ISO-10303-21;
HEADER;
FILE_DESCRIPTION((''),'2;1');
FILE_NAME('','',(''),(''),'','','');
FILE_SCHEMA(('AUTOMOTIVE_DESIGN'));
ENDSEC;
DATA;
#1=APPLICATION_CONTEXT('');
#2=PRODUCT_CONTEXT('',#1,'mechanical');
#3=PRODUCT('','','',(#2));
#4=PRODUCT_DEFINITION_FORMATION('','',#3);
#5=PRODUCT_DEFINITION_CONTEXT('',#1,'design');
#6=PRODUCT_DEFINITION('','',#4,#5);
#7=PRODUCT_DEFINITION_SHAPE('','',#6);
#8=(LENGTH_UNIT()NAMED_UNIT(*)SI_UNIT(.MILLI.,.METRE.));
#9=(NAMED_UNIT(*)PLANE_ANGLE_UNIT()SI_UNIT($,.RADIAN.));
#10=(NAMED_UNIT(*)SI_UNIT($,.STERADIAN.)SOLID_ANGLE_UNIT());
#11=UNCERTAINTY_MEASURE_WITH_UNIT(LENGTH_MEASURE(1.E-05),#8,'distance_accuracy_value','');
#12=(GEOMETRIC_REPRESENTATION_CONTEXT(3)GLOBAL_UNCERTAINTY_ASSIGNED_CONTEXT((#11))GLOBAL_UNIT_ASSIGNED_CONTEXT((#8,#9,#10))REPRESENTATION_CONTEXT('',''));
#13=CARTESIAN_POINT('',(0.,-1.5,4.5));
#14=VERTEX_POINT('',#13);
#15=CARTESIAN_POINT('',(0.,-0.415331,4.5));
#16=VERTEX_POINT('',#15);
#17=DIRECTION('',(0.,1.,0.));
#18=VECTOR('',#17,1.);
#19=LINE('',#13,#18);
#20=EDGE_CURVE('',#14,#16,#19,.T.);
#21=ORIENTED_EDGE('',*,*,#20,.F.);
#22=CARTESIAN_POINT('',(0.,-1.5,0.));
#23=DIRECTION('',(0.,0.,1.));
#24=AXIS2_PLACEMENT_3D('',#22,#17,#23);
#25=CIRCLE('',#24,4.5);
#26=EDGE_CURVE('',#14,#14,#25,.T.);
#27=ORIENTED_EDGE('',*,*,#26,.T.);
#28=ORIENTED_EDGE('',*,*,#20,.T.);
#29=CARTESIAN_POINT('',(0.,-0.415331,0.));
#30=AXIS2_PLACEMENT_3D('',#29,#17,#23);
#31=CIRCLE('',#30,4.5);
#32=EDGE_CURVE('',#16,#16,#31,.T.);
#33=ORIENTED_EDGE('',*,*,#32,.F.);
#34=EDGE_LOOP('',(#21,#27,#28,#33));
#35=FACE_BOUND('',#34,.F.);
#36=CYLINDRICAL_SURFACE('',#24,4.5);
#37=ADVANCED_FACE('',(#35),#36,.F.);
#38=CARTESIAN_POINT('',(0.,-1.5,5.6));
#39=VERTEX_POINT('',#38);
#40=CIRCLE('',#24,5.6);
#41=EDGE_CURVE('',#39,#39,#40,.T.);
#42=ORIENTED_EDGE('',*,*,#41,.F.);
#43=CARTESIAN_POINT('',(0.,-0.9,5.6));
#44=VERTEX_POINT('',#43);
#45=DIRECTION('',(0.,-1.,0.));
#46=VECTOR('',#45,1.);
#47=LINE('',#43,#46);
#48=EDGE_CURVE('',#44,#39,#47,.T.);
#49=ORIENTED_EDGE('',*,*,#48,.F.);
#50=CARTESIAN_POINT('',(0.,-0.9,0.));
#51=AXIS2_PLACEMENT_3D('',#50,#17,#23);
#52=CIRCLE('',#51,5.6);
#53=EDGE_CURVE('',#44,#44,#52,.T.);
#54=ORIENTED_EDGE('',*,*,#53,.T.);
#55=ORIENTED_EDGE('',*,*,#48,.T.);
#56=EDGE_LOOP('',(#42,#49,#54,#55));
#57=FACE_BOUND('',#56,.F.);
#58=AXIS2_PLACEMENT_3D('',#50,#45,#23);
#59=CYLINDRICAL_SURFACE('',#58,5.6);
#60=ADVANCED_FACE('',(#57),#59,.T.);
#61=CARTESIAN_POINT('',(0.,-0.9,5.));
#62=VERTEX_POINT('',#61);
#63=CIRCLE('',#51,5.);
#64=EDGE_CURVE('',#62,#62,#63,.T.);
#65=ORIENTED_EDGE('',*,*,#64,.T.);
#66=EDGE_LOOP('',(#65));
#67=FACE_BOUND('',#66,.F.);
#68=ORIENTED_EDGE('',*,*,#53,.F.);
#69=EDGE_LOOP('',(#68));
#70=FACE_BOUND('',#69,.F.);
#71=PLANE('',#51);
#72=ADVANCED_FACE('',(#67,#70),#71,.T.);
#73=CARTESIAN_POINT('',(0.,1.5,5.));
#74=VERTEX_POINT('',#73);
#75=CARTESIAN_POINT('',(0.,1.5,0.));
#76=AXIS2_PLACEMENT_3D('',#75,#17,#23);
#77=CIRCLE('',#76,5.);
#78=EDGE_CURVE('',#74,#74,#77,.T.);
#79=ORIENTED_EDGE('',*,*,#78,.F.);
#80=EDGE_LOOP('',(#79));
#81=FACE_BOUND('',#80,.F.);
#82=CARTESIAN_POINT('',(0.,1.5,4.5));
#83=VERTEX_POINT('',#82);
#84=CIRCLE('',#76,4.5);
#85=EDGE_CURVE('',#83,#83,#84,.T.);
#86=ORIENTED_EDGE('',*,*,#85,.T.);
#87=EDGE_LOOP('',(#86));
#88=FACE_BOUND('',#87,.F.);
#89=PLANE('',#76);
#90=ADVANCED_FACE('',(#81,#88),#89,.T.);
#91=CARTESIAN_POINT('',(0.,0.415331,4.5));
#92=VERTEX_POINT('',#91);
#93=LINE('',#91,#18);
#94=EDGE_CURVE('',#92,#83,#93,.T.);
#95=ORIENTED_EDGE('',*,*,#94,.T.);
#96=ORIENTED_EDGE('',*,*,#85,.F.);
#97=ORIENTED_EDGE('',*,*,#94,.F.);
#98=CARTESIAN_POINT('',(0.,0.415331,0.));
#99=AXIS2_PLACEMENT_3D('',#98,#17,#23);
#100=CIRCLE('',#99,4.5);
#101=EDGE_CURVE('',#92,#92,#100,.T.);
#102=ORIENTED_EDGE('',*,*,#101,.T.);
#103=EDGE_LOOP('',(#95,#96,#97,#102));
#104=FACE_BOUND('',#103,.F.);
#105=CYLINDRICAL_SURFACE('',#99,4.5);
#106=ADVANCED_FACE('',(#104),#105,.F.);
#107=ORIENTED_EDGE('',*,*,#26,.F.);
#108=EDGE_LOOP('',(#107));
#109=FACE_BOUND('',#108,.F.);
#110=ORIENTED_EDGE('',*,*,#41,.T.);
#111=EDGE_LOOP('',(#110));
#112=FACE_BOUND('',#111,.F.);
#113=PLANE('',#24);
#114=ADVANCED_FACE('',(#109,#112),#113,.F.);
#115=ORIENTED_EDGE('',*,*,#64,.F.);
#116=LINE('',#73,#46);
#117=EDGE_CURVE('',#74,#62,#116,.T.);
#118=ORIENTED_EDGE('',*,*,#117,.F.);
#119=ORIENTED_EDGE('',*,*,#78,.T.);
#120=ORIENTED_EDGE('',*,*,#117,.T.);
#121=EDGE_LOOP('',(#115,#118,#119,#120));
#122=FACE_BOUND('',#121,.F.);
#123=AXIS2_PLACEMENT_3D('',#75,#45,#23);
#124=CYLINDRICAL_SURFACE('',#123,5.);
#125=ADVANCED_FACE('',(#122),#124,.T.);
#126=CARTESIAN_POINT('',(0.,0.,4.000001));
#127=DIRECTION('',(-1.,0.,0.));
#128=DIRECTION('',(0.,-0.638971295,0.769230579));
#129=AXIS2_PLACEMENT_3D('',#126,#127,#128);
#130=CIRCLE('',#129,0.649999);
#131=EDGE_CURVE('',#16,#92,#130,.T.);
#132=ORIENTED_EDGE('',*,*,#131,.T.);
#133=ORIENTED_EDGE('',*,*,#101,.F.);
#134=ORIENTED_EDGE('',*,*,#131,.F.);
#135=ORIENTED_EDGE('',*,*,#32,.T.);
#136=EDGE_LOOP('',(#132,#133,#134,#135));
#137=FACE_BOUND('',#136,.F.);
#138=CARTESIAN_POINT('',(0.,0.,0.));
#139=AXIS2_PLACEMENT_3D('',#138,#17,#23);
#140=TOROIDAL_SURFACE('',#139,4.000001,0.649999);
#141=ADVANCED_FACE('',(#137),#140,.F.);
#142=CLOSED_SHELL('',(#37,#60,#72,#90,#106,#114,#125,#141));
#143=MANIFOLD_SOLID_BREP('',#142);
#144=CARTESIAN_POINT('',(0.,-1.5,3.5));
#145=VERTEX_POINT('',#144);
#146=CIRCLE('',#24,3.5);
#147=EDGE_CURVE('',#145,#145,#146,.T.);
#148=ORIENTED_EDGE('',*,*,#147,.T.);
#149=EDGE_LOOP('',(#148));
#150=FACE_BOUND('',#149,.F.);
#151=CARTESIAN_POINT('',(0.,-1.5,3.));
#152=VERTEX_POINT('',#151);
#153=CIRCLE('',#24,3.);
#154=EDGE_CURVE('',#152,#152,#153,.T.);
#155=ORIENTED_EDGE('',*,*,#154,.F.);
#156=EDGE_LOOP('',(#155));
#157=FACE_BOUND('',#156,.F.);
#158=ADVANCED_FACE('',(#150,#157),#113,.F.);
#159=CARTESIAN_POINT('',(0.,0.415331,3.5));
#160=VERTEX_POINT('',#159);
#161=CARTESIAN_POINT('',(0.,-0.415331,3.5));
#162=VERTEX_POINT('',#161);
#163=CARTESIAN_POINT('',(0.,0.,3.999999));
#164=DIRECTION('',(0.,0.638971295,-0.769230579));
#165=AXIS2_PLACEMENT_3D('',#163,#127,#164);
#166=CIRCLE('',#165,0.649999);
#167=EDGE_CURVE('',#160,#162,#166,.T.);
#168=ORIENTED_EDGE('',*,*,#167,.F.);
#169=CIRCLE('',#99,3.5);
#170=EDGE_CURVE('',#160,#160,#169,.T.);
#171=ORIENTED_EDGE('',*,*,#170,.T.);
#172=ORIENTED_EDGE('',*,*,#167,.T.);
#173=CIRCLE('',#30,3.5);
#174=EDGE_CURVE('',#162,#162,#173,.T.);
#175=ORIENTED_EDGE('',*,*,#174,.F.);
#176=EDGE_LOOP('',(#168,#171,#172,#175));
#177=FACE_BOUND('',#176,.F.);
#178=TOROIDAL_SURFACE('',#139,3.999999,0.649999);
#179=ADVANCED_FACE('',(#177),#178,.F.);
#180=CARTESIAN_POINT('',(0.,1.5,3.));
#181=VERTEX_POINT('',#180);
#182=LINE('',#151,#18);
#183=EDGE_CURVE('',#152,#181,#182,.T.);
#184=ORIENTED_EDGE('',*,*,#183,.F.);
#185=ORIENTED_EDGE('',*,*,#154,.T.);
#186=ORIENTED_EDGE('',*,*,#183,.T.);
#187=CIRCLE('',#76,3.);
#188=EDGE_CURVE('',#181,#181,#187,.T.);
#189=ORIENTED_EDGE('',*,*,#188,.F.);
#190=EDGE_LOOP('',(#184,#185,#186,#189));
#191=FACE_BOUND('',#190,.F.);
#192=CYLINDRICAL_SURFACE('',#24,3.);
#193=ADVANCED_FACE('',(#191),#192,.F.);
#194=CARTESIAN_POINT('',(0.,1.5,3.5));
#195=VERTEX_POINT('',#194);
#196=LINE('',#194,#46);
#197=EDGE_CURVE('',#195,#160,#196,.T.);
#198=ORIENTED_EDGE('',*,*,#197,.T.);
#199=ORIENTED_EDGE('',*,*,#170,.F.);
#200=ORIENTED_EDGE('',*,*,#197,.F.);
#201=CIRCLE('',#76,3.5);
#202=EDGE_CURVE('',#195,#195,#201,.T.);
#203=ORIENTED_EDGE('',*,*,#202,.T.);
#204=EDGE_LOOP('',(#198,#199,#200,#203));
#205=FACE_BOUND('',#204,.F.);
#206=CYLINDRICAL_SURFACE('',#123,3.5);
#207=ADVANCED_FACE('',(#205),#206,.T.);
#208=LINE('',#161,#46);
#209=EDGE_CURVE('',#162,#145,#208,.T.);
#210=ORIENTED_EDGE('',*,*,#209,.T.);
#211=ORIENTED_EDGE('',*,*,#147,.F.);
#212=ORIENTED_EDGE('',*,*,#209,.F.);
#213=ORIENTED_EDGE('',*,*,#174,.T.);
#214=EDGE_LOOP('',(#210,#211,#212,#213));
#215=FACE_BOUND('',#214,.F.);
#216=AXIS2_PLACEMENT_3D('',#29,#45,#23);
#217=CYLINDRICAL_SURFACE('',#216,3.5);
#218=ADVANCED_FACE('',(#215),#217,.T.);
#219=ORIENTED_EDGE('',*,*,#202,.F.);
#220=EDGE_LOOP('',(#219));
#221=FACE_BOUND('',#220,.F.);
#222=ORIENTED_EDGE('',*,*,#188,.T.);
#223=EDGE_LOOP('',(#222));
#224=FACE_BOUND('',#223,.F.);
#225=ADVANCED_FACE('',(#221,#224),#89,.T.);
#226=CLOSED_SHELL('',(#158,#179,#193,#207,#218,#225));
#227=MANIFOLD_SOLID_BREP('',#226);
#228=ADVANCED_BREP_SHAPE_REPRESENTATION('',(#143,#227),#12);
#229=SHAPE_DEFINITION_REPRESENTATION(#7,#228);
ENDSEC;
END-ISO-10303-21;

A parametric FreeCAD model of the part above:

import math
import FreeCAD as App
import Part
import Sketcher
from FreeCAD import Vector
Q = App.Units.Quantity

doc = App.newDocument("Part")
params = doc.addObject("Spreadsheet::Sheet", "Params")
for row, (alias, value) in enumerate([
    ("sketch1_width", "3 mm"),
    ("sketch1_radius", "0.649999 mm"),
    ("sketch1_width2", "0.6 mm"),
    ("sketch1_height", "0.5 mm"),
    ("revolution_angle", "360 deg"),
], start=1):
    params.set(f"A{row}", alias)
    params.set(f"B{row}", "=" + value)
    params.setAlias(f"B{row}", alias)

body = doc.addObject("PartDesign::Body", "Body")
body.AllowCompound = True

# Sketch on YZ plane
sketch1 = body.newObject("Sketcher::SketchObject", "Sketch")
sketch1.AttachmentSupport = (doc.getObject("YZ_Plane"), [""])
sketch1.MapMode = "FlatFace"
sketch1.addGeometry([
    Part.LineSegment(Vector(-0.415331, 3.5, 0), Vector(-1.5, 3.5, 0)),  # 0
    Part.LineSegment(Vector(-1.5, 3.5, 0), Vector(-1.5, 3, 0)),  # 1
    Part.LineSegment(Vector(-1.5, 3, 0), Vector(1.5, 3, 0)),  # 2
    Part.LineSegment(Vector(1.5, 3, 0), Vector(1.5, 3.5, 0)),  # 3
    Part.LineSegment(Vector(1.5, 3.5, 0), Vector(0.415331, 3.5, 0)),  # 4
    Part.ArcOfCircle(Part.Circle(Vector(0, 3.999999, 0), Vector(0, 0, 1), 0.649999), math.radians(-129.715154), math.radians(-50.284846)),  # 5
    Part.LineSegment(Vector(-0.9, 5.6, 0), Vector(-1.5, 5.6, 0)),  # 6
    Part.LineSegment(Vector(-1.5, 5.6, 0), Vector(-1.5, 4.5, 0)),  # 7
    Part.LineSegment(Vector(-1.5, 4.5, 0), Vector(-0.415331, 4.5, 0)),  # 8
    Part.ArcOfCircle(Part.Circle(Vector(0, 4.000001, 0), Vector(0, 0, 1), 0.649999), math.radians(50.284846), math.radians(129.715154)),  # 9
    Part.LineSegment(Vector(0.415331, 4.5, 0), Vector(1.5, 4.5, 0)),  # 10
    Part.LineSegment(Vector(1.5, 4.5, 0), Vector(1.5, 5, 0)),  # 11
    Part.LineSegment(Vector(1.5, 5, 0), Vector(-0.9, 5, 0)),  # 12
    Part.LineSegment(Vector(-0.9, 5, 0), Vector(-0.9, 5.6, 0)),  # 13
], False)
sketch1.addConstraint([
    Sketcher.Constraint("Coincident", 0, 2, 1, 1),
    Sketcher.Constraint("Coincident", 1, 2, 2, 1),
    Sketcher.Constraint("Coincident", 2, 2, 3, 1),
    Sketcher.Constraint("Coincident", 3, 2, 4, 1),
    Sketcher.Constraint("Coincident", 4, 2, 5, 2),
    Sketcher.Constraint("Coincident", 5, 1, 0, 1),
    Sketcher.Constraint("Coincident", 6, 2, 7, 1),
    Sketcher.Constraint("Coincident", 7, 2, 8, 1),
    Sketcher.Constraint("Coincident", 8, 2, 9, 2),
    Sketcher.Constraint("Coincident", 9, 1, 10, 1),
    Sketcher.Constraint("Coincident", 10, 2, 11, 1),
    Sketcher.Constraint("Coincident", 11, 2, 12, 1),
    Sketcher.Constraint("Coincident", 12, 2, 13, 1),
    Sketcher.Constraint("Coincident", 13, 2, 6, 1),
    Sketcher.Constraint("Horizontal", 0),
    Sketcher.Constraint("Vertical", 1),
    Sketcher.Constraint("Horizontal", 2),
    Sketcher.Constraint("Vertical", 3),
    Sketcher.Constraint("Horizontal", 4),
    Sketcher.Constraint("Horizontal", 6),
    Sketcher.Constraint("Vertical", 7),
    Sketcher.Constraint("Horizontal", 8),
    Sketcher.Constraint("Horizontal", 10),
    Sketcher.Constraint("Vertical", 11),
    Sketcher.Constraint("Horizontal", 12),
    Sketcher.Constraint("Vertical", 13),
    Sketcher.Constraint("Coincident", 9, 3, 5, 3),
    Sketcher.Constraint("Equal", 5, 9),
    Sketcher.Constraint("Symmetric", 0, 2, 3, 2, -2),
    Sketcher.Constraint("Symmetric", 8, 2, 9, 1, -2),
    Sketcher.Constraint("Vertical", 1, 2, 6, 2),
    Sketcher.Constraint("Vertical", 5, 1, 8, 2),
    Sketcher.Constraint("Vertical", 3, 2, 10, 2),
    Sketcher.Constraint("Equal", 3, 11),
    Sketcher.Constraint("Equal", 6, 13),
    Sketcher.Constraint("DistanceX", 2, 1, 2, 2, Q("3 mm")),
    Sketcher.Constraint("Radius", 5, Q("0.649999 mm")),
    Sketcher.Constraint("DistanceX", 6, 2, 6, 1, Q("0.6 mm")),
    Sketcher.Constraint("DistanceY", 1, 2, 1, 1, Q("0.5 mm")),
    Sketcher.Constraint("DistanceY", -1, 1, 5, 3, Q("3.999999 mm")),
    Sketcher.Constraint("DistanceY", -1, 1, 1, 2, Q("3 mm")),
])
sketch1.setExpression("Constraints[35]", "Params.sketch1_width")
sketch1.setExpression("Constraints[36]", "Params.sketch1_radius")
sketch1.setExpression("Constraints[37]", "Params.sketch1_width2")
sketch1.setExpression("Constraints[38]", "Params.sketch1_height")
revolution = body.newObject("PartDesign::Revolution", "Revolution")
revolution.Profile = sketch1
revolution.ReferenceAxis = (sketch1, ["H_Axis"])
revolution.setExpression("Angle", "Params.revolution_angle")

doc.recompute()
